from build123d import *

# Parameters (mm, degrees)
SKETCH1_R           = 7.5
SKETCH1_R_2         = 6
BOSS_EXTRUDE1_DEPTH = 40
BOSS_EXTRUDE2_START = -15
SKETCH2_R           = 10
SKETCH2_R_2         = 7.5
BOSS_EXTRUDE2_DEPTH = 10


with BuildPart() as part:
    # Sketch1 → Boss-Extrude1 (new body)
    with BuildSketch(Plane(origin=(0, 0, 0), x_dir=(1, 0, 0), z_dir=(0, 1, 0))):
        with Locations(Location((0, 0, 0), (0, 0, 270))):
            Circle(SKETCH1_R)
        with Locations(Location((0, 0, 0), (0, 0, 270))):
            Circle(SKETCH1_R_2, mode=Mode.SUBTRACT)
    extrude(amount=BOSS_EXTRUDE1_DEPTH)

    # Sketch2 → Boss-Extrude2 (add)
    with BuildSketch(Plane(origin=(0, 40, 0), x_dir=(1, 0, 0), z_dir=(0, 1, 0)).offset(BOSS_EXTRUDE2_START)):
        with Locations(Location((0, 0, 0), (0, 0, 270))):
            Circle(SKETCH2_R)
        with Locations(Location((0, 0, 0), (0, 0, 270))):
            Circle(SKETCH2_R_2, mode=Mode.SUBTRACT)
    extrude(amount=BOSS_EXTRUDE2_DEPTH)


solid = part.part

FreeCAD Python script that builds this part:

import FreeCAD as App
import Part
import Sketcher

doc = App.newDocument("Part")
body = doc.addObject("PartDesign::Body", "Body")

# Sketch on XZ plane
sketch1 = body.newObject("Sketcher::SketchObject", "Sketch")
sketch1.AttachmentSupport = (doc.getObject("XZ_Plane"), [""])
sketch1.MapMode = "FlatFace"
sketch1.addGeometry([
    Part.Circle(App.Vector(0, 0, 0), App.Vector(0, 0, 1), 8),
    Part.Circle(App.Vector(0, 0, 0), App.Vector(0, 0, 1), 6),
], False)
sketch1.addConstraint([
    Sketcher.Constraint("Coincident", 0, 3, -1, 1),
    Sketcher.Constraint("Coincident", 1, 3, -1, 1),
    Sketcher.Constraint("Diameter", 0, 15.0),
    Sketcher.Constraint("Diameter", 1, 12.0),
])
pad1 = body.newObject("PartDesign::Pad", "Pad")
pad1.Profile = sketch1
pad1.Length = 40
pad1.Reversed = True

# Sketch on XZ plane
sketch2 = body.newObject("Sketcher::SketchObject", "Sketch001")
sketch2.AttachmentSupport = (doc.getObject("XZ_Plane"), [""])
sketch2.MapMode = "FlatFace"
sketch2.AttachmentOffset = App.Placement(App.Vector(0, 0, -25), App.Rotation())
sketch2.addGeometry([
    Part.Circle(App.Vector(0, 0, 0), App.Vector(0, 0, 1), 10),
    Part.Circle(App.Vector(0, 0, 0), App.Vector(0, 0, 1), 8),
], False)
sketch2.addConstraint([
    Sketcher.Constraint("Coincident", 0, 3, -1, 1),
    Sketcher.Constraint("Coincident", 1, 3, -1, 1),
    Sketcher.Constraint("Diameter", 0, 20.0),
    Sketcher.Constraint("Diameter", 1, 15.0),
])
pad2 = body.newObject("PartDesign::Pad", "Pad001")
pad2.Profile = sketch2
pad2.Length = 10
pad2.Reversed = True

doc.recompute()
